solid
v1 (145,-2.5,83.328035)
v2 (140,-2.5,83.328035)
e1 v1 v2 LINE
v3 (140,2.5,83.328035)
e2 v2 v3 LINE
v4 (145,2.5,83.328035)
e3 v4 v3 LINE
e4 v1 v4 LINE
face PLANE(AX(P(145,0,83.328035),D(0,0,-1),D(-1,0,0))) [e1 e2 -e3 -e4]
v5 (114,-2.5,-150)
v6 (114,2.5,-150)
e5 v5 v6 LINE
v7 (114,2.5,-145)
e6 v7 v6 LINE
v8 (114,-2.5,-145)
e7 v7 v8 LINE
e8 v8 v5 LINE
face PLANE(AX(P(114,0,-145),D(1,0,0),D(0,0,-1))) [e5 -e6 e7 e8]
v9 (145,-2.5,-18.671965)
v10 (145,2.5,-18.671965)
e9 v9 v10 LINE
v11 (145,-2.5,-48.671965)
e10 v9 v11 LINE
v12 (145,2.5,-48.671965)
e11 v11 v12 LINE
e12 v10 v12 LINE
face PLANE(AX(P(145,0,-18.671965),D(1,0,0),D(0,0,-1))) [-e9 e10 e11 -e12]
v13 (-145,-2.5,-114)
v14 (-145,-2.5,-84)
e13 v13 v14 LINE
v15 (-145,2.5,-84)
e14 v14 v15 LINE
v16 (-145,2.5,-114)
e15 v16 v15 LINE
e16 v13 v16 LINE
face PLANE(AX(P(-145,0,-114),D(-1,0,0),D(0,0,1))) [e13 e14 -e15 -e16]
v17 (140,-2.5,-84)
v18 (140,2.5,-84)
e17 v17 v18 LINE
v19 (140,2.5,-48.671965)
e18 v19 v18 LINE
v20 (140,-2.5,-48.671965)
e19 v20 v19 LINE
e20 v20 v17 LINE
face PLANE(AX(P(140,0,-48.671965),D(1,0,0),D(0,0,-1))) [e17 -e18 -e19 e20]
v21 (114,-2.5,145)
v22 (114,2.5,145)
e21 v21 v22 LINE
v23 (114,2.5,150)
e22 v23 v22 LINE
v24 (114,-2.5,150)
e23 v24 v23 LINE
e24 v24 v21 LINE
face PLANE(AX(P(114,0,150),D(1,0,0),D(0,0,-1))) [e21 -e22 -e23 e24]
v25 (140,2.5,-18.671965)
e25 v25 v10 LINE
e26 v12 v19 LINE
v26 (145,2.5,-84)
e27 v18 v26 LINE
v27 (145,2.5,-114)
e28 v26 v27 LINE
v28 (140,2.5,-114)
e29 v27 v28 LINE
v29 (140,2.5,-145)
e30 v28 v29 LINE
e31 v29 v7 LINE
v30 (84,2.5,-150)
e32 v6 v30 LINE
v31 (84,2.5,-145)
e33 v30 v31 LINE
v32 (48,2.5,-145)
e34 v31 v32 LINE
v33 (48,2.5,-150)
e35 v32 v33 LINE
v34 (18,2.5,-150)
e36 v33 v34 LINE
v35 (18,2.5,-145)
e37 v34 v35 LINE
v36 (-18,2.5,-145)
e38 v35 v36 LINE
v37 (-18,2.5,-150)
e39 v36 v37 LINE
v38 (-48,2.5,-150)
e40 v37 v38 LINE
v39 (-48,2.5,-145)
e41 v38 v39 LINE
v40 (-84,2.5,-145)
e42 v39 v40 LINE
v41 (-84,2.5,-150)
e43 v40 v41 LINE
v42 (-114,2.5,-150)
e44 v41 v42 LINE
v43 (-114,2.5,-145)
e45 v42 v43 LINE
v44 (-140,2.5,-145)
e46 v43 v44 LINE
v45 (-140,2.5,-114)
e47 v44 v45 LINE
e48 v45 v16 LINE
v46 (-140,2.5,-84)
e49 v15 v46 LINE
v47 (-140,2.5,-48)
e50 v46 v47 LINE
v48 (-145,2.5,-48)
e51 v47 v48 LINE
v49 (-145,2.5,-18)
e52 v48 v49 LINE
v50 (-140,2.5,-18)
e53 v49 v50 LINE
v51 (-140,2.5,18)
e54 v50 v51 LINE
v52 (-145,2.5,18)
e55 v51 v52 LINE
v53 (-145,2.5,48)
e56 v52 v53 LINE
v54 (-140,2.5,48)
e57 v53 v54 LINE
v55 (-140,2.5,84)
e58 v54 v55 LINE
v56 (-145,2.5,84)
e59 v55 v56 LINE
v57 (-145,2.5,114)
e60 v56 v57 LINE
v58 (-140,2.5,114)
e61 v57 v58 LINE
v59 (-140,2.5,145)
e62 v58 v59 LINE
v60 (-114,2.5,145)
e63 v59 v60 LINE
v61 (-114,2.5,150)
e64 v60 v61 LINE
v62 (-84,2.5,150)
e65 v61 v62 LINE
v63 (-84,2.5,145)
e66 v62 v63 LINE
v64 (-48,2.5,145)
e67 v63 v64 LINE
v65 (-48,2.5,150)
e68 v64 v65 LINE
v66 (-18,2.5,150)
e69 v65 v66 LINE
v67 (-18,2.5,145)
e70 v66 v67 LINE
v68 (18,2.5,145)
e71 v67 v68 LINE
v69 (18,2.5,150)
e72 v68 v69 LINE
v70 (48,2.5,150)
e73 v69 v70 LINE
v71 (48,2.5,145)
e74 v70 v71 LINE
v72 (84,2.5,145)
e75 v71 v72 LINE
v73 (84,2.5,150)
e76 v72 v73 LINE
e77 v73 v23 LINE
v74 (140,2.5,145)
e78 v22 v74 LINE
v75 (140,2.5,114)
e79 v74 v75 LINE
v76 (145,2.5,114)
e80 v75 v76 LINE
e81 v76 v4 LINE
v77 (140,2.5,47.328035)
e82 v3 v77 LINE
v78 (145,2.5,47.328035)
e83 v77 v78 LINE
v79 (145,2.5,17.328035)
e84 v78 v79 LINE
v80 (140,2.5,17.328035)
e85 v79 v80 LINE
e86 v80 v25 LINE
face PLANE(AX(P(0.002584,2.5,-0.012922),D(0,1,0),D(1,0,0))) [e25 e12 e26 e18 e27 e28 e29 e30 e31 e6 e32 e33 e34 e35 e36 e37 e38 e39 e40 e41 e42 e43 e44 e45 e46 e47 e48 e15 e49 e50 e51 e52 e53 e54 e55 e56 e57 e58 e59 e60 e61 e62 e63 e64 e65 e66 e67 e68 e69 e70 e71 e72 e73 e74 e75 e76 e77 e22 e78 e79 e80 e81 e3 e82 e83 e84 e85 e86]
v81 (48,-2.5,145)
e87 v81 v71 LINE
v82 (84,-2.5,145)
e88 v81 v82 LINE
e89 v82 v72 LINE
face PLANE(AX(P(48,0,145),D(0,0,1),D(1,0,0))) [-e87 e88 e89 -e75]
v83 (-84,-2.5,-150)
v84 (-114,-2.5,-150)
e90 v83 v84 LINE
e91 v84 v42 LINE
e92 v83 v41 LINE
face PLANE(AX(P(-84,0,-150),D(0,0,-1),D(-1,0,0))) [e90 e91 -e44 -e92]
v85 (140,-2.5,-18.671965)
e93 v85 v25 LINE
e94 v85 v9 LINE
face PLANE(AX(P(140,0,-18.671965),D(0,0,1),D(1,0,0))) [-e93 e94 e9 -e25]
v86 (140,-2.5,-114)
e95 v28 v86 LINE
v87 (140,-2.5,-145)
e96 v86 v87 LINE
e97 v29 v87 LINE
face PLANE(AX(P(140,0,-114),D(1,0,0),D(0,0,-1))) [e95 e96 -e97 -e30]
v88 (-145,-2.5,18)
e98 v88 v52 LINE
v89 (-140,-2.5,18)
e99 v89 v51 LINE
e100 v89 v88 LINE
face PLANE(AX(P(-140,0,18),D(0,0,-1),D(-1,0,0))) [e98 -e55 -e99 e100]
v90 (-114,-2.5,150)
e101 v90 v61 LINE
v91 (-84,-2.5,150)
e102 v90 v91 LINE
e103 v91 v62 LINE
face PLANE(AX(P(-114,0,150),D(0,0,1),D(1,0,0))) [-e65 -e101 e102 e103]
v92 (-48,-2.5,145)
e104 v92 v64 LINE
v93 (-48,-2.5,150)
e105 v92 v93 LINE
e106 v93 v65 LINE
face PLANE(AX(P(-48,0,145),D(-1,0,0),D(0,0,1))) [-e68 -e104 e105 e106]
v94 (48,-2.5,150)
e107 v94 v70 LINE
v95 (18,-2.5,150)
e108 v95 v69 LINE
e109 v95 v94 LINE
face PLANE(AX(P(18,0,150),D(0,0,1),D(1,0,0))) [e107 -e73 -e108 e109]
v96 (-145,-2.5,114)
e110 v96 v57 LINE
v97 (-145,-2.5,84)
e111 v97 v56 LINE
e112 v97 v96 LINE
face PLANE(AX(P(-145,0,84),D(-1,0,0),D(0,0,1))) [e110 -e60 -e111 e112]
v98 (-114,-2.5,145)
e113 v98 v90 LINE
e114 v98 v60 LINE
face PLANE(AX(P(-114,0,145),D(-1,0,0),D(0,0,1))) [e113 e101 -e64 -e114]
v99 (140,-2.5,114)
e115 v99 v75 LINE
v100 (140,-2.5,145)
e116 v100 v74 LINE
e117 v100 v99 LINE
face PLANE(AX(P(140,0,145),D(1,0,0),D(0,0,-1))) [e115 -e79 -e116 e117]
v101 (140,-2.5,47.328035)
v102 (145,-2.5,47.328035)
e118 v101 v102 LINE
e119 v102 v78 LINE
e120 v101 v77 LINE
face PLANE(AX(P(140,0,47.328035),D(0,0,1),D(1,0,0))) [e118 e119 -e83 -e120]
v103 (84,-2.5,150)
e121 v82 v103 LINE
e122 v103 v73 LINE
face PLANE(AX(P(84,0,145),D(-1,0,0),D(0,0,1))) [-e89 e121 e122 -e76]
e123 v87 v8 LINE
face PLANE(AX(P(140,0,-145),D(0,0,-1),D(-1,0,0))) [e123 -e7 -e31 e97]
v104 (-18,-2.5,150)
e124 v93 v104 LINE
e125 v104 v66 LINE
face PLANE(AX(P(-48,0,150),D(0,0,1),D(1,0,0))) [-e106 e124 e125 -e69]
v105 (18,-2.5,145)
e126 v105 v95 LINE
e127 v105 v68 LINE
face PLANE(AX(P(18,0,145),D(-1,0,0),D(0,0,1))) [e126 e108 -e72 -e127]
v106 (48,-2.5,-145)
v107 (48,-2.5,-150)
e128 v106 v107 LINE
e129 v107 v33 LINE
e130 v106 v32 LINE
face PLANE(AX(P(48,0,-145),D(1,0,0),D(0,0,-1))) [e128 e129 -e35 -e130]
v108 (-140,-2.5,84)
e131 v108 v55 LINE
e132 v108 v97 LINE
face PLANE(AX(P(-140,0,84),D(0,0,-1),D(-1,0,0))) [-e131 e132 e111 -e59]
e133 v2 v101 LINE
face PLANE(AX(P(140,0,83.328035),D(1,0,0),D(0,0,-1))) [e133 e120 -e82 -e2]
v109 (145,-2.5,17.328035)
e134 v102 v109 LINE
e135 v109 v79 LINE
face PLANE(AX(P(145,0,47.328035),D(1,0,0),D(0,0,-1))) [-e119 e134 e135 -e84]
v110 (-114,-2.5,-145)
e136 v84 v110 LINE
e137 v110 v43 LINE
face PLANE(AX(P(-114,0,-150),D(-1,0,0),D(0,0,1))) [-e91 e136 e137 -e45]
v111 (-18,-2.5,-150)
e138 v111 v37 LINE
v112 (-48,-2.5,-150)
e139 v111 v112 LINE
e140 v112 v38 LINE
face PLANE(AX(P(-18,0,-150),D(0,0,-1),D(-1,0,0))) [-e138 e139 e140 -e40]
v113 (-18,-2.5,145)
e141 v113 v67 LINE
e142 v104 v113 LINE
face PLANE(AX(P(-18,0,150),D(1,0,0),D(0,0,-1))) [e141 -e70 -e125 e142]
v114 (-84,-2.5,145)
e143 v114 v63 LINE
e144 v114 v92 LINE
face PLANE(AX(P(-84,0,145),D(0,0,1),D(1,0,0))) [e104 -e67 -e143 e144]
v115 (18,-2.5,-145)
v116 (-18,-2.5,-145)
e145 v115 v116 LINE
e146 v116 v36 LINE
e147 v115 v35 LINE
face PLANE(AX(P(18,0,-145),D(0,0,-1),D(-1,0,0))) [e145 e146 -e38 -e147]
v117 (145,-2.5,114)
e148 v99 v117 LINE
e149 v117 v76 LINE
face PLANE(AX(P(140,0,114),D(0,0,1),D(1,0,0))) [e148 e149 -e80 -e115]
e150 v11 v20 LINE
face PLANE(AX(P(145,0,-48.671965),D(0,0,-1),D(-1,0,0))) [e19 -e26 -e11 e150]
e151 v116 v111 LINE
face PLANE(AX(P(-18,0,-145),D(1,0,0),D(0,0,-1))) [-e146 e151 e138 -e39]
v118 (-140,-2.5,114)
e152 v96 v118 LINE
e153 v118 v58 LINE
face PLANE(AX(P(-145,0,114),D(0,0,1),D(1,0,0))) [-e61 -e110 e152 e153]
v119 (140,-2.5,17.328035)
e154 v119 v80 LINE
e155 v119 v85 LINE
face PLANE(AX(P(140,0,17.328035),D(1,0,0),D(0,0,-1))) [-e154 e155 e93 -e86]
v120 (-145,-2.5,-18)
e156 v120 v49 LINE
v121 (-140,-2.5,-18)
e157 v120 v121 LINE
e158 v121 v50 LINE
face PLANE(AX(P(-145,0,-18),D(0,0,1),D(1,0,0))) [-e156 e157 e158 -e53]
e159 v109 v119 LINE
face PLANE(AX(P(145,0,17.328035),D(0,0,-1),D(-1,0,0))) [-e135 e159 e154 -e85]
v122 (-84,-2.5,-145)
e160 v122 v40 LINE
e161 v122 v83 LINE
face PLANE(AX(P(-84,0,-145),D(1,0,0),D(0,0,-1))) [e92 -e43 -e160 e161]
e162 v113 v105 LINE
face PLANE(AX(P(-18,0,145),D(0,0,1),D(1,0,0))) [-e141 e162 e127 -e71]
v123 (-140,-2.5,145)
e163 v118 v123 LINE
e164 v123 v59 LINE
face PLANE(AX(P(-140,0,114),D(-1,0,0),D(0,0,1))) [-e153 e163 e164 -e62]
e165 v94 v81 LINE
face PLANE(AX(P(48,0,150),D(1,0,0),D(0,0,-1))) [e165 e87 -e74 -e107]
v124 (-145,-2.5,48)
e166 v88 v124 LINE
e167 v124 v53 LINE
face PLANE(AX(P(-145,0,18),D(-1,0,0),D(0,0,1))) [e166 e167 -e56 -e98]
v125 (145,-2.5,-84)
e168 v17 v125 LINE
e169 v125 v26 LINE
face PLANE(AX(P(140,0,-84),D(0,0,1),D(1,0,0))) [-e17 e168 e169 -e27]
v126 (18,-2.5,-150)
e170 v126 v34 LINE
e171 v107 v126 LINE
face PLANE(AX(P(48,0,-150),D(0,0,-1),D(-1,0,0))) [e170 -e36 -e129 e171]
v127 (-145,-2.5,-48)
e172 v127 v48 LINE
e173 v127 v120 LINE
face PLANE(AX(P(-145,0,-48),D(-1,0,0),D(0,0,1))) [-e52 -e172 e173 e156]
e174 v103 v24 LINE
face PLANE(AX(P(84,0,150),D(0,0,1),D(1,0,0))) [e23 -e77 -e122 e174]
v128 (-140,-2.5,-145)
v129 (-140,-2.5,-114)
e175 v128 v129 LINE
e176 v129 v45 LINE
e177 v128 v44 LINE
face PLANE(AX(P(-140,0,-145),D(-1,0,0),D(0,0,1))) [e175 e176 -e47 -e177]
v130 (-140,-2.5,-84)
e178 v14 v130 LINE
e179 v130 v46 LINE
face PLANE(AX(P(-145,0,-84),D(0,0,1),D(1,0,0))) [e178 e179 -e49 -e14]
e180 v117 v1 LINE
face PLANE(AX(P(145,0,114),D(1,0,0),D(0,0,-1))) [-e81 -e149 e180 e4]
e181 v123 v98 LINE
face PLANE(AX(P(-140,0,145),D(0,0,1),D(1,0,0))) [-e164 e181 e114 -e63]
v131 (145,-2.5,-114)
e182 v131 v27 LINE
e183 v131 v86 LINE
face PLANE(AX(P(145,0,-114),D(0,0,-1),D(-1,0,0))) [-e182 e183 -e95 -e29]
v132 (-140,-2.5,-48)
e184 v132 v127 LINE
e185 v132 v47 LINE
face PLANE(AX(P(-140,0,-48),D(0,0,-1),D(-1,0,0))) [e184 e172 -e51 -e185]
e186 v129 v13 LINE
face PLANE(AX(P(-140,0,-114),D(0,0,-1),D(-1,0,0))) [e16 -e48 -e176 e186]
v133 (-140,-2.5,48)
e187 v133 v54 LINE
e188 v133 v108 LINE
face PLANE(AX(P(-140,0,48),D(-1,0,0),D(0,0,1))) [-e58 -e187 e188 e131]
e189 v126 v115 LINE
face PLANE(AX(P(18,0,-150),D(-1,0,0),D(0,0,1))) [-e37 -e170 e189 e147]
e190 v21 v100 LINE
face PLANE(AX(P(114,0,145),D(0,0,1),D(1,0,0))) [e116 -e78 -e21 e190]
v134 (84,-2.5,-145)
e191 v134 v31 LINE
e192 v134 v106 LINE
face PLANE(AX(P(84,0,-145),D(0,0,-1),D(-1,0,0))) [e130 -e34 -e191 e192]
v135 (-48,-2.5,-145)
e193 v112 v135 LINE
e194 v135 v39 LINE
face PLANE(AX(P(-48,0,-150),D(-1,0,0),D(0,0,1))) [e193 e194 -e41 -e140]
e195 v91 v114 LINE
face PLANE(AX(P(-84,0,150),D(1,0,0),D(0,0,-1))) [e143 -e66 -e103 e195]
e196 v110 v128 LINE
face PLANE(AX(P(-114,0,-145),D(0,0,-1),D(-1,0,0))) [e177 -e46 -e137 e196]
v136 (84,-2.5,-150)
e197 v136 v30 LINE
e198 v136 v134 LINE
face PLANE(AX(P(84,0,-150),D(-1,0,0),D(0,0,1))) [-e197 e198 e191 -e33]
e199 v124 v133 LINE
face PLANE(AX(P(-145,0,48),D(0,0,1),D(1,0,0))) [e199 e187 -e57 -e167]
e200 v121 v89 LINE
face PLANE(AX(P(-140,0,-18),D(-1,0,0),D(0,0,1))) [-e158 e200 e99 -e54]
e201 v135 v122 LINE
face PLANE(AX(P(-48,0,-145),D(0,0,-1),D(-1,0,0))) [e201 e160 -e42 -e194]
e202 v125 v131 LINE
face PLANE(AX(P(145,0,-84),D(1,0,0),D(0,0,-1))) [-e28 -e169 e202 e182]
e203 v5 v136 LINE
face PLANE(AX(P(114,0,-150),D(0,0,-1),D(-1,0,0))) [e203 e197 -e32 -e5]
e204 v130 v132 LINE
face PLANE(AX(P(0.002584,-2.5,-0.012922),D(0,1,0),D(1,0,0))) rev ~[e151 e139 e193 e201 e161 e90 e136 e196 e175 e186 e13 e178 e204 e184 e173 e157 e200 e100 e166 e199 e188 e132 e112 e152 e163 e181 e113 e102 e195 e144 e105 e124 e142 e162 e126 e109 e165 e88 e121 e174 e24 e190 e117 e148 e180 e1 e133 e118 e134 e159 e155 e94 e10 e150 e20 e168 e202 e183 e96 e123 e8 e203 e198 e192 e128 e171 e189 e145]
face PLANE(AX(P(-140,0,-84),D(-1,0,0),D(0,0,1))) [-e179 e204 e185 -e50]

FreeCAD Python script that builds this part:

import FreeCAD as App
import Part
import Sketcher
from FreeCAD import Vector


def add_polygon(sketch, points):
    """Adds a closed chain of lines whose ends are joined by coincident constraints."""
    first, n = sketch.GeometryCount, len(points)
    for a, b in zip(points, points[1:] + points[:1]):
        sketch.addGeometry(Part.LineSegment(App.Vector(*a, 0), App.Vector(*b, 0)), False)
    for i in range(n):
        sketch.addConstraint(Sketcher.Constraint("Coincident", first + i, 2, first + (i + 1) % n, 1))

doc = App.newDocument("Part")
body = doc.addObject("PartDesign::Body", "Body")

sketch1 = body.newObject("Sketcher::SketchObject", "Sketch")
sketch1.AttachmentSupport = (doc.getObject("XZ_Plane"), [""])
sketch1.MapMode = "FlatFace"
add_polygon(sketch1, [(114, -145), (114, -150), (84, -150), (84, -145), (48, -145), (48, -150), (18, -150), (18, -145), (-18, -145), (-18, -150), (-48, -150), (-48, -145), (-84, -145), (-84, -150), (-114, -150), (-114, -145), (-140, -145), (-140, -114), (-145, -114), (-145, -84), (-140, -84), (-140, -48), (-145, -48), (-145, -18), (-140, -18), (-140, 18), (-145, 18), (-145, 48), (-140, 48), (-140, 84), (-145, 84), (-145, 114), (-140, 114), (-140, 145), (-114, 145), (-114, 150), (-84, 150), (-84, 145), (-48, 145), (-48, 150), (-18, 150), (-18, 145), (18, 145), (18, 150), (48, 150), (48, 145), (84, 145), (84, 150), (114, 150), (114, 145), (140, 145), (140, 114), (145, 114), (145, 83), (140, 83), (140, 47), (145, 47), (145, 17), (140, 17), (140, -19), (145, -19), (145, -49), (140, -49), (140, -84), (145, -84), (145, -114), (140, -114), (140, -145)])
sketch1.addConstraint([
    Sketcher.Constraint("Vertical", 0),
    Sketcher.Constraint("Horizontal", 1),
    Sketcher.Constraint("Vertical", 2),
    Sketcher.Constraint("Horizontal", 3),
    Sketcher.Constraint("Vertical", 4),
    Sketcher.Constraint("Horizontal", 5),
    Sketcher.Constraint("Vertical", 6),
    Sketcher.Constraint("Horizontal", 7),
    Sketcher.Constraint("Vertical", 8),
    Sketcher.Constraint("Horizontal", 9),
    Sketcher.Constraint("Vertical", 10),
    Sketcher.Constraint("Horizontal", 11),
    Sketcher.Constraint("Vertical", 12),
    Sketcher.Constraint("Horizontal", 13),
    Sketcher.Constraint("Vertical", 14),
    Sketcher.Constraint("Horizontal", 15),
    Sketcher.Constraint("Vertical", 16),
    Sketcher.Constraint("Horizontal", 17),
    Sketcher.Constraint("Vertical", 18),
    Sketcher.Constraint("Horizontal", 19),
    Sketcher.Constraint("Vertical", 20),
    Sketcher.Constraint("Horizontal", 21),
    Sketcher.Constraint("Vertical", 22),
    Sketcher.Constraint("Horizontal", 23),
    Sketcher.Constraint("Vertical", 24),
    Sketcher.Constraint("Horizontal", 25),
    Sketcher.Constraint("Vertical", 26),
    Sketcher.Constraint("Horizontal", 27),
    Sketcher.Constraint("Vertical", 28),
    Sketcher.Constraint("Horizontal", 29),
    Sketcher.Constraint("Vertical", 30),
    Sketcher.Constraint("Horizontal", 31),
    Sketcher.Constraint("Vertical", 32),
    Sketcher.Constraint("Horizontal", 33),
    Sketcher.Constraint("Vertical", 34),
    Sketcher.Constraint("Horizontal", 35),
    Sketcher.Constraint("Vertical", 36),
    Sketcher.Constraint("Horizontal", 37),
    Sketcher.Constraint("Vertical", 38),
    Sketcher.Constraint("Horizontal", 39),
    Sketcher.Constraint("Vertical", 40),
    Sketcher.Constraint("Horizontal", 41),
    Sketcher.Constraint("Vertical", 42),
    Sketcher.Constraint("Horizontal", 43),
    Sketcher.Constraint("Vertical", 44),
    Sketcher.Constraint("Horizontal", 45),
    Sketcher.Constraint("Vertical", 46),
    Sketcher.Constraint("Horizontal", 47),
    Sketcher.Constraint("Vertical", 48),
    Sketcher.Constraint("Horizontal", 49),
    Sketcher.Constraint("Vertical", 50),
    Sketcher.Constraint("Horizontal", 51),
    Sketcher.Constraint("Vertical", 52),
    Sketcher.Constraint("Horizontal", 53),
    Sketcher.Constraint("Vertical", 54),
    Sketcher.Constraint("Horizontal", 55),
    Sketcher.Constraint("Vertical", 56),
    Sketcher.Constraint("Horizontal", 57),
    Sketcher.Constraint("Vertical", 58),
    Sketcher.Constraint("Horizontal", 59),
    Sketcher.Constraint("Vertical", 60),
    Sketcher.Constraint("Horizontal", 61),
    Sketcher.Constraint("Vertical", 62),
    Sketcher.Constraint("Horizontal", 63),
    Sketcher.Constraint("Vertical", 64),
    Sketcher.Constraint("Horizontal", 65),
    Sketcher.Constraint("Vertical", 66),
    Sketcher.Constraint("Horizontal", 67),
    Sketcher.Constraint("Symmetric", 0, 2, 34, 2, -1, 1),
    Sketcher.Constraint("Symmetric", 2, 2, 36, 2, -1, 1),
    Sketcher.Constraint("Symmetric", 4, 2, 38, 2, -1, 1),
    Sketcher.Constraint("Symmetric", 6, 2, 40, 2, -1, 1),
    Sketcher.Constraint("Symmetric", 8, 2, 42, 2, -1, 1),
    Sketcher.Constraint("Symmetric", 10, 2, 44, 2, -1, 1),
    Sketcher.Constraint("Symmetric", 12, 2, 46, 2, -1, 1),
    Sketcher.Constraint("Symmetric", 14, 2, 48, 2, -1, 1),
    Sketcher.Constraint("Symmetric", 16, 2, 50, 2, -1, 1),
    Sketcher.Constraint("Symmetric", 28, 2, 62, 2, -1, 1),
    Sketcher.Constraint("Symmetric", 30, 2, 64, 2, -1, 1),
    Sketcher.Constraint("Symmetric", 32, 2, 66, 2, -1, 1),
    Sketcher.Constraint("Symmetric", 5, 2, 8, 2, -2),
    Sketcher.Constraint("Symmetric", 3, 2, 10, 2, -2),
    Sketcher.Constraint("Symmetric", 1, 2, 12, 2, -2),
    Sketcher.Constraint("Symmetric", 33, 2, 48, 2, -2),
    Sketcher.Constraint("Symmetric", 31, 2, 50, 2, -2),
    Sketcher.Constraint("Symmetric", 19, 2, 62, 2, -2),
    Sketcher.Constraint("Symmetric", 22, 2, 25, 2, -1),
    Sketcher.Constraint("Horizontal", 1, 2, 4, 2),
    Sketcher.Constraint("Horizontal", 3, 2, 6, 2),
    Sketcher.Constraint("Horizontal", 11, 2, 14, 2),
    Sketcher.Constraint("Vertical", 16, 2, 19, 2),
    Sketcher.Constraint("Vertical", 18, 2, 21, 2),
    Sketcher.Constraint("Vertical", 20, 2, 23, 2),
    Sketcher.Constraint("Vertical", 26, 2, 29, 2),
    Sketcher.Constraint("Vertical", 50, 2, 53, 2),
    Sketcher.Constraint("Vertical", 52, 2, 55, 2),
    Sketcher.Constraint("Vertical", 54, 2, 57, 2),
    Sketcher.Constraint("Vertical", 56, 2, 59, 2),
    Sketcher.Constraint("Vertical", 60, 2, 63, 2),
    Sketcher.Constraint("Equal", 1, 5),
    Sketcher.Constraint("Equal", 3, 7),
    Sketcher.Constraint("Equal", 65, 0),
    Sketcher.Constraint("Equal", 47, 18),
    Sketcher.Constraint("Equal", 45, 20),
    Sketcher.Constraint("Equal", 18, 22),
    Sketcher.Constraint("Equal", 20, 24),
    Sketcher.Constraint("Equal", 22, 26),
    Sketcher.Constraint("Equal", 28, 54),
    Sketcher.Constraint("Equal", 30, 56),
    Sketcher.Constraint("Equal", 54, 58),
    Sketcher.Constraint("Equal", 56, 60),
    Sketcher.Constraint("DistanceX", 1, 2, 1, 1, 30.0),
    Sketcher.Constraint("DistanceX", 3, 2, 3, 1, 36.0),
    Sketcher.Constraint("DistanceX", 15, 2, 15, 1, 26.0),
    Sketcher.Constraint("DistanceX", 17, 2, 17, 1, 5.0),
    Sketcher.Constraint("DistanceY", 16, 1, 16, 2, 31.0),
    Sketcher.Constraint("DistanceY", 52, 2, 52, 1, 30.671965),
])
pad1 = body.newObject("PartDesign::Pad", "Pad")
pad1.Profile = sketch1
pad1.Length = 5
pad1.Midplane = True

doc.recompute()
